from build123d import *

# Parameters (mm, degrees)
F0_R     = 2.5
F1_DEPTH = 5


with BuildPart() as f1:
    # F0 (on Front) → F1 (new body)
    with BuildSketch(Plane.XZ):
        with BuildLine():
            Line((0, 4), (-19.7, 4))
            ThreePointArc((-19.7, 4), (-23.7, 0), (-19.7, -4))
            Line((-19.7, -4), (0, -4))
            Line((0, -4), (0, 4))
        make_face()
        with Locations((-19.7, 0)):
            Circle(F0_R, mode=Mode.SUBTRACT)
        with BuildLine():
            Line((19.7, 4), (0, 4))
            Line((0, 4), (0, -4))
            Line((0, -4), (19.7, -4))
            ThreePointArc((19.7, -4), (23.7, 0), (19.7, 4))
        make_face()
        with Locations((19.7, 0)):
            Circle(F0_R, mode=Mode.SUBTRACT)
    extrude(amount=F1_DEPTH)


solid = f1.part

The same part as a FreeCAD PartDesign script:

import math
import FreeCAD as App
import Part
import Sketcher

V = App.Vector

doc = App.newDocument("Part")
body = doc.addObject("PartDesign::Body", "Body")

sketch1 = body.newObject("Sketcher::SketchObject", "Sketch")
sketch1.AttachmentSupport = (doc.getObject("XZ_Plane"), [""])
sketch1.MapMode = "FlatFace"
sketch1.addGeometry(Part.ArcOfCircle(Part.Circle(V(-19.7, 0, 0), V(0, 0, 1), 4), math.radians(90), math.radians(270)), False)
sketch1.addGeometry(Part.LineSegment(V(-19.7, -4, 0), V(19.7, -4, 0)), False)
sketch1.addGeometry(Part.ArcOfCircle(Part.Circle(V(19.7, 0, 0), V(0, 0, 1), 4), math.radians(-90), math.radians(90)), False)
sketch1.addGeometry(Part.LineSegment(V(19.7, 4, 0), V(-19.7, 4, 0)), False)
sketch1.addGeometry(Part.Circle(V(-19.7, 0, 0), V(0, 0, 1), 2.5), False)
sketch1.addGeometry(Part.Circle(V(19.7, 0, 0), V(0, 0, 1), 2.5), False)
sketch1.addConstraint(Sketcher.Constraint("Tangent", 0, 2, 1, 1))
sketch1.addConstraint(Sketcher.Constraint("Tangent", 1, 2, 2, 1))
sketch1.addConstraint(Sketcher.Constraint("Tangent", 2, 2, 3, 1))
sketch1.addConstraint(Sketcher.Constraint("Tangent", 3, 2, 0, 1))
sketch1.addConstraint(Sketcher.Constraint("Horizontal", 1))
sketch1.addConstraint(Sketcher.Constraint("Horizontal", 3))
sketch1.addConstraint(Sketcher.Constraint("Coincident", 4, 3, 0, 3))
sketch1.addConstraint(Sketcher.Constraint("Coincident", 5, 3, 2, 3))
sketch1.addConstraint(Sketcher.Constraint("Equal", 4, 5))
sketch1.addConstraint(Sketcher.Constraint("Symmetric", 0, 3, 2, 3, -1, 1))
sketch1.addConstraint(Sketcher.Constraint("Diameter", 4, 5.0))
sketch1.addConstraint(Sketcher.Constraint("Radius", 0, 4.0))
sketch1.addConstraint(Sketcher.Constraint("DistanceX", 1, 1, 1, 2, 39.4))
pad1 = body.newObject("PartDesign::Pad", "Pad")
pad1.Profile = sketch1
pad1.Length = 5

doc.recompute()
